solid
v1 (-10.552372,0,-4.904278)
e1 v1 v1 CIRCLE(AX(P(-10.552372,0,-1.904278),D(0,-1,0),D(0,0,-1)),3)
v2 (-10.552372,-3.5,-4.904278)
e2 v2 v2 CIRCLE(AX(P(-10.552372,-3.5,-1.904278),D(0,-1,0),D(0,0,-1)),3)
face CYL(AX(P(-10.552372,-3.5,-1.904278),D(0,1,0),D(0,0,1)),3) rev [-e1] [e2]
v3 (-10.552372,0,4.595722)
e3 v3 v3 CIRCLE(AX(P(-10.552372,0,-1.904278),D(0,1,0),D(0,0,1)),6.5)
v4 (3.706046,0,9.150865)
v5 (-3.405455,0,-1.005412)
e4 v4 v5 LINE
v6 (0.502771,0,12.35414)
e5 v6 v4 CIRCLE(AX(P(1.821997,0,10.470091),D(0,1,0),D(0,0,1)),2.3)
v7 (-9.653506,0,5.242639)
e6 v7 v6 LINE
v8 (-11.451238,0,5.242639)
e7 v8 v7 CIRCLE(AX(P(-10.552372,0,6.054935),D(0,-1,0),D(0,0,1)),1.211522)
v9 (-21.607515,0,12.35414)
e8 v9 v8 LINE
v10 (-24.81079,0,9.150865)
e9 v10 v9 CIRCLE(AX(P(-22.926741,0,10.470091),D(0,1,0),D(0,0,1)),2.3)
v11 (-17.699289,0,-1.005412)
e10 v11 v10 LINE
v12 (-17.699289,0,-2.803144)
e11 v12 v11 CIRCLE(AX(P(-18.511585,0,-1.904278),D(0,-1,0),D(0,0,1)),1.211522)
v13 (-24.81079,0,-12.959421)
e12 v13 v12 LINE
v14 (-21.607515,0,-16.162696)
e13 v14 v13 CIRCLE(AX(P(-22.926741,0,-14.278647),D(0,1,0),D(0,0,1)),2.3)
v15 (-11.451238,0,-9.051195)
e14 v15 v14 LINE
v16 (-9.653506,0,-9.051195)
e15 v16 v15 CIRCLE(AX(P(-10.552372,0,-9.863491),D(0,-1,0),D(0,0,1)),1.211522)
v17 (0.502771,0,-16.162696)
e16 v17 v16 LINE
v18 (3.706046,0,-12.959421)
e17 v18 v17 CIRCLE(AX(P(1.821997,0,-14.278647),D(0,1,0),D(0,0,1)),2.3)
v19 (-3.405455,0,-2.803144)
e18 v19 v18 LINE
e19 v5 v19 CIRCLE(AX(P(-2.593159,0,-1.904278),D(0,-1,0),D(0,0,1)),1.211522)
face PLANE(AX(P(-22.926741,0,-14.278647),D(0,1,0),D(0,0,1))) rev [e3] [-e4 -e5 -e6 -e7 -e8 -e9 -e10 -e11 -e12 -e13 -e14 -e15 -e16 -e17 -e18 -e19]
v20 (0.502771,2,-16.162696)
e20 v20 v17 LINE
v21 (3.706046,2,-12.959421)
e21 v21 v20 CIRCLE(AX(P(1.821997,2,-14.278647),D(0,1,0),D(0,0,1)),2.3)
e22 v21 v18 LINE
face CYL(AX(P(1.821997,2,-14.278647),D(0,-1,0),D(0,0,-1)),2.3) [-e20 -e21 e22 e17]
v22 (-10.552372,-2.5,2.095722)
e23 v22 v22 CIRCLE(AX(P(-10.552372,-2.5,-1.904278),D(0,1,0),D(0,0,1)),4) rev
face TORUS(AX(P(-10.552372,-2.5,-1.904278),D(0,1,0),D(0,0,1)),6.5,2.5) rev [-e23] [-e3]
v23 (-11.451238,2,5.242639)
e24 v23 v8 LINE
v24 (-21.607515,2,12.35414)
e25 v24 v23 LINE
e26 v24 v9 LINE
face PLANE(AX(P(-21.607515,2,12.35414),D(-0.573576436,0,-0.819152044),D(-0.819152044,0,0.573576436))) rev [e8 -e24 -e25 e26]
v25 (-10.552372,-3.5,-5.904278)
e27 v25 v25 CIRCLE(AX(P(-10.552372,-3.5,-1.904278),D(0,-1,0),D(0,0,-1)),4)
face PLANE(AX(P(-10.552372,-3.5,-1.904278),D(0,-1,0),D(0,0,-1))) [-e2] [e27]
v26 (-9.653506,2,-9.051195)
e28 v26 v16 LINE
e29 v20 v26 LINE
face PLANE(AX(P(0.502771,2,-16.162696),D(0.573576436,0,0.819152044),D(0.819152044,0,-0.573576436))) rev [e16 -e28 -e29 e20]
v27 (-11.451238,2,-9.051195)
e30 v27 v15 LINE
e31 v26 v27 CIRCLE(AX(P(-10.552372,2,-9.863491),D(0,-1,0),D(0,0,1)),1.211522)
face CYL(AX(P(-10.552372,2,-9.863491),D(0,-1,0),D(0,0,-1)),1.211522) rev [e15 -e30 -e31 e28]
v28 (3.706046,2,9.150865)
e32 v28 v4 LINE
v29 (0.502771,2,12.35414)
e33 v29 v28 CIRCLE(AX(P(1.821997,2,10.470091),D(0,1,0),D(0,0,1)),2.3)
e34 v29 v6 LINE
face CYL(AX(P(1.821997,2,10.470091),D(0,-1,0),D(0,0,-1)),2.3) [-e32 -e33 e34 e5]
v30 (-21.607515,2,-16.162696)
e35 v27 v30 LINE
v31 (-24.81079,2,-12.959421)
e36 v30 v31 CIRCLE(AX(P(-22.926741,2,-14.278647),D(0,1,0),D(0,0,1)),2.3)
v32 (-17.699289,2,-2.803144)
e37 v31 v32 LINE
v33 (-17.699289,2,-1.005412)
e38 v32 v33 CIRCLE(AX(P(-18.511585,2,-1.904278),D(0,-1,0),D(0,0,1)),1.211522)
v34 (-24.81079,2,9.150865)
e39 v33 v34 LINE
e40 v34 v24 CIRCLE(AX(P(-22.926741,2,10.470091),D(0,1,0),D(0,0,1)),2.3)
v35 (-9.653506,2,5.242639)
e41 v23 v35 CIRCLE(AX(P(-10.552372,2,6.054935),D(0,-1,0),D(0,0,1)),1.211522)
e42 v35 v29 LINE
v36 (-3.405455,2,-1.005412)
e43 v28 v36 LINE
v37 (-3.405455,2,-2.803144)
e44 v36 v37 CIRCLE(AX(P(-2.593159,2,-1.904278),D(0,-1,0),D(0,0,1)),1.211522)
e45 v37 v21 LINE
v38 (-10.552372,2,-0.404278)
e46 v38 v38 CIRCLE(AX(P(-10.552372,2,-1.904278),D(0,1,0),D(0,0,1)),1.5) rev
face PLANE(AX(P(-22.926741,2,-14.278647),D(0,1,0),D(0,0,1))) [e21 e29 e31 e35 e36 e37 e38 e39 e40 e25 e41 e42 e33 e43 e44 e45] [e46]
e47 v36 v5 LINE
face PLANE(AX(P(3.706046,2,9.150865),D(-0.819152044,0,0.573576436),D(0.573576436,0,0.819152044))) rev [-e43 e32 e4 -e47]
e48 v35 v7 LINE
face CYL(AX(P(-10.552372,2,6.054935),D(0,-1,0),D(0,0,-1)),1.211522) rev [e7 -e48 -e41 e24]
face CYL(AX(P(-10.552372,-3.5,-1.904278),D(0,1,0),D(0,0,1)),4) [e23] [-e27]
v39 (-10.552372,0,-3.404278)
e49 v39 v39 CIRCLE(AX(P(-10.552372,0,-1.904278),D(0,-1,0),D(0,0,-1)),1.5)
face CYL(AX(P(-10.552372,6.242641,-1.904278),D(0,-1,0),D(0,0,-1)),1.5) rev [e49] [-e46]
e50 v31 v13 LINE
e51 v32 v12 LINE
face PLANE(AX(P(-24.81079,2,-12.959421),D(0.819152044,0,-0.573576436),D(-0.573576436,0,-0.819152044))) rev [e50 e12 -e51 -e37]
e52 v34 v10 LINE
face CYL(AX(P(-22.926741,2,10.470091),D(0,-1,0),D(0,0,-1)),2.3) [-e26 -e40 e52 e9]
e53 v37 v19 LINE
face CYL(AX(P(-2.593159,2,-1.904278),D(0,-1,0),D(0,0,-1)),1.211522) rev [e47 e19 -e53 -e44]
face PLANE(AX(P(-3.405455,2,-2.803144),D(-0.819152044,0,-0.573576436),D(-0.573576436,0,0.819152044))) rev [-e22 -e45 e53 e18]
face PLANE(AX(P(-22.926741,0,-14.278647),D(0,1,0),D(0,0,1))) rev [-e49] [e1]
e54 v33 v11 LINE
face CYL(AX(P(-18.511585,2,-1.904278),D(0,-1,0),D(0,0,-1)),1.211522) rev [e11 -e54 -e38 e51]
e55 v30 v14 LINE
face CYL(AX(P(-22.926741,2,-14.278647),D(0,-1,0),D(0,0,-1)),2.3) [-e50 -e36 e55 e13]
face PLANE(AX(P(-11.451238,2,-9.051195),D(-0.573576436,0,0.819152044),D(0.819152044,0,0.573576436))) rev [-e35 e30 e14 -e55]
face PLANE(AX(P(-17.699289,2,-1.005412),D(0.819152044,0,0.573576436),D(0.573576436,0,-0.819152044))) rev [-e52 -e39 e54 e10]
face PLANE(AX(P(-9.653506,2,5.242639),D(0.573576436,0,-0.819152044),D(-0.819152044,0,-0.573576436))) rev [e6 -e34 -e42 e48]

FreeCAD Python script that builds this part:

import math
import FreeCAD as App
import Part
import Sketcher
from FreeCAD import Vector
Q = App.Units.Quantity


def edges_at(feature, points):
    """Names of the edges that pass closest to the given points."""
    edges = feature.Shape.Edges
    near = lambda p: min(range(len(edges)), key=lambda i: edges[i].distToShape(Part.Vertex(*p))[0])
    return sorted({f"Edge{near(p) + 1}" for p in points})

doc = App.newDocument("Part")
body = doc.addObject("PartDesign::Body", "Body")

# Sketch on XZ plane
sketch1 = body.newObject("Sketcher::SketchObject", "Sketch")
sketch1.AttachmentSupport = (doc.getObject("XZ_Plane"), [""])
sketch1.MapMode = "FlatFace"
sketch1.addGeometry(Part.LineSegment(Vector(-24.8, -13, 0), Vector(-17.7, -2.8, 0)), False)
sketch1.addGeometry(Part.ArcOfCircle(Part.Circle(Vector(-18.5, -1.9, 0), Vector(0, 0, 1), 1.2), math.radians(-48), math.radians(48)), False)
sketch1.addGeometry(Part.LineSegment(Vector(-17.7, -1, 0), Vector(-24.8, 9.2, 0)), False)
sketch1.addGeometry(Part.ArcOfCircle(Part.Circle(Vector(-22.9, 10.5, 0), Vector(0, 0, 1), 2.3), math.radians(55), math.radians(215)), False)
sketch1.addGeometry(Part.LineSegment(Vector(-21.6, 12.4, 0), Vector(-11.5, 5.2, 0)), False)
sketch1.addGeometry(Part.ArcOfCircle(Part.Circle(Vector(-10.6, 6.1, 0), Vector(0, 0, 1), 1.2), math.radians(-138), math.radians(-42)), False)
sketch1.addGeometry(Part.LineSegment(Vector(-9.7, 5.2, 0), Vector(0.5, 12.4, 0)), False)
sketch1.addGeometry(Part.ArcOfCircle(Part.Circle(Vector(1.8, 10.5, 0), Vector(0, 0, 1), 2.3), math.radians(-35), math.radians(125)), False)
sketch1.addGeometry(Part.LineSegment(Vector(3.7, 9.2, 0), Vector(-3.4, -1, 0)), False)
sketch1.addGeometry(Part.ArcOfCircle(Part.Circle(Vector(-2.6, -1.9, 0), Vector(0, 0, 1), 1.2), math.radians(132), math.radians(228)), False)
sketch1.addGeometry(Part.LineSegment(Vector(-3.4, -2.8, 0), Vector(3.7, -13, 0)), False)
sketch1.addGeometry(Part.ArcOfCircle(Part.Circle(Vector(1.8, -14.3, 0), Vector(0, 0, 1), 2.3), math.radians(-125), math.radians(35)), False)
sketch1.addGeometry(Part.LineSegment(Vector(0.5, -16.2, 0), Vector(-9.7, -9.1, 0)), False)
sketch1.addGeometry(Part.ArcOfCircle(Part.Circle(Vector(-10.6, -9.9, 0), Vector(0, 0, 1), 1.2), math.radians(42), math.radians(138)), False)
sketch1.addGeometry(Part.LineSegment(Vector(-11.5, -9.1, 0), Vector(-21.6, -16.2, 0)), False)
sketch1.addGeometry(Part.ArcOfCircle(Part.Circle(Vector(-22.9, -14.3, 0), Vector(0, 0, 1), 2.3), math.radians(145), math.radians(305)), False)
sketch1.addConstraint(Sketcher.Constraint("Coincident", 0, 2, 1, 1))
sketch1.addConstraint(Sketcher.Constraint("Coincident", 1, 2, 2, 1))
sketch1.addConstraint(Sketcher.Constraint("Tangent", 2, 2, 3, 2))
sketch1.addConstraint(Sketcher.Constraint("Tangent", 3, 1, 4, 1))
sketch1.addConstraint(Sketcher.Constraint("Coincident", 4, 2, 5, 1))
sketch1.addConstraint(Sketcher.Constraint("Coincident", 5, 2, 6, 1))
sketch1.addConstraint(Sketcher.Constraint("Tangent", 6, 2, 7, 2))
sketch1.addConstraint(Sketcher.Constraint("Tangent", 7, 1, 8, 1))
sketch1.addConstraint(Sketcher.Constraint("Coincident", 8, 2, 9, 1))
sketch1.addConstraint(Sketcher.Constraint("Coincident", 9, 2, 10, 1))
sketch1.addConstraint(Sketcher.Constraint("Tangent", 10, 2, 11, 2))
sketch1.addConstraint(Sketcher.Constraint("Tangent", 11, 1, 12, 1))
sketch1.addConstraint(Sketcher.Constraint("Coincident", 12, 2, 13, 1))
sketch1.addConstraint(Sketcher.Constraint("Coincident", 13, 2, 14, 1))
sketch1.addConstraint(Sketcher.Constraint("Tangent", 14, 2, 15, 2))
sketch1.addConstraint(Sketcher.Constraint("Tangent", 15, 1, 0, 1))
sketch1.addConstraint(Sketcher.Constraint("Equal", 1, 5))
sketch1.addConstraint(Sketcher.Constraint("Equal", 3, 7))
sketch1.addConstraint(Sketcher.Constraint("Equal", 5, 9))
sketch1.addConstraint(Sketcher.Constraint("Equal", 7, 11))
sketch1.addConstraint(Sketcher.Constraint("Equal", 9, 13))
sketch1.addConstraint(Sketcher.Constraint("Equal", 11, 15))
sketch1.addConstraint(Sketcher.Constraint("Perpendicular", 0, 4))
sketch1.addConstraint(Sketcher.Constraint("Perpendicular", 2, 6))
sketch1.addConstraint(Sketcher.Constraint("Perpendicular", 4, 8))
sketch1.addConstraint(Sketcher.Constraint("Perpendicular", 6, 10))
sketch1.addConstraint(Sketcher.Constraint("Perpendicular", 8, 12))
sketch1.addConstraint(Sketcher.Constraint("Perpendicular", 10, 14))
sketch1.addConstraint(Sketcher.Constraint("Horizontal", 3, 3, 7, 3))
sketch1.addConstraint(Sketcher.Constraint("Horizontal", 1, 3, 9, 3))
sketch1.addConstraint(Sketcher.Constraint("Horizontal", 11, 3, 15, 3))
sketch1.addConstraint(Sketcher.Constraint("Horizontal", 4, 2, 5, 2))
sketch1.addConstraint(Sketcher.Constraint("Horizontal", 3, 1, 6, 2))
sketch1.addConstraint(Sketcher.Constraint("Horizontal", 1, 2, 8, 2))
sketch1.addConstraint(Sketcher.Constraint("Horizontal", 0, 2, 9, 2))
sketch1.addConstraint(Sketcher.Constraint("Horizontal", 12, 2, 13, 2))
sketch1.addConstraint(Sketcher.Constraint("Vertical", 7, 3, 11, 3))
sketch1.addConstraint(Sketcher.Constraint("Vertical", 0, 2, 1, 2))
sketch1.addConstraint(Sketcher.Constraint("Vertical", 5, 2, 12, 2))
sketch1.addConstraint(Sketcher.Constraint("Equal", 2, 4))
sketch1.addConstraint(Sketcher.Constraint("Radius", 3, 2.3))
sketch1.addConstraint(Sketcher.Constraint("Angle", 0, Q("55 deg")))
sketch1.addConstraint(Sketcher.Constraint("Radius", 1, 1.211522))
sketch1.addConstraint(Sketcher.Constraint("DistanceX", 2, 2, 1, 2, 7.111501))
sketch1.addConstraint(Sketcher.Constraint("DistanceX", 3, 3, -1, 1, 22.926741))
sketch1.addConstraint(Sketcher.Constraint("DistanceY", -1, 1, 3, 3, 10.470091))
sketch1.addConstraint(Sketcher.Constraint("DistanceX", 5, 3, -1, 1, 10.552372))
sketch1.addConstraint(Sketcher.Constraint("DistanceX", 9, 3, -1, 1, 2.593159))
pad1 = body.newObject("PartDesign::Pad", "Pad")
pad1.Profile = sketch1
pad1.Length = 2
pad1.Reversed = True

# Sketch on XZ plane
sketch2 = body.newObject("Sketcher::SketchObject", "Sketch001")
sketch2.AttachmentSupport = (doc.getObject("XZ_Plane"), [""])
sketch2.MapMode = "FlatFace"
sketch2.addGeometry(Part.Circle(Vector(-10.6, -1.9, 0), Vector(0, 0, 1), 4), False)
sketch2.addGeometry(Part.Circle(Vector(-10.6, -1.9, 0), Vector(0, 0, 1), 3), False)
sketch2.addConstraint(Sketcher.Constraint("Coincident", 1, 3, 0, 3))
sketch2.addConstraint(Sketcher.Constraint("Diameter", 0, 8.0))
sketch2.addConstraint(Sketcher.Constraint("Diameter", 1, 6.0))
sketch2.addConstraint(Sketcher.Constraint("DistanceX", 0, 3, -1, 1, 10.552372))
sketch2.addConstraint(Sketcher.Constraint("DistanceY", 0, 3, -1, 1, 1.904278))
pad2 = body.newObject("PartDesign::Pad", "Pad001")
pad2.Profile = sketch2
pad2.Length = 3.5
doc.recompute()

fillet = body.newObject("PartDesign::Fillet", "Fillet")
fillet.Base = (pad2, edges_at(pad2, [(-10.552, 0, -5.904)]))
fillet.Radius = 2.5

# Sketch on XZ plane
sketch3 = body.newObject("Sketcher::SketchObject", "Sketch002")
sketch3.AttachmentSupport = (doc.getObject("XZ_Plane"), [""])
sketch3.MapMode = "FlatFace"
sketch3.addGeometry(Part.Circle(Vector(-10.6, -1.9, 0), Vector(0, 0, 1), 1.5), False)
sketch3.addConstraint(Sketcher.Constraint("Diameter", 0, 3.0))
sketch3.addConstraint(Sketcher.Constraint("DistanceX", 0, 3, -1, 1, 10.552372))
sketch3.addConstraint(Sketcher.Constraint("DistanceY", 0, 3, -1, 1, 1.904278))
pocket1 = body.newObject("PartDesign::Pocket", "Pocket")
pocket1.Profile = sketch3
pocket1.Length = 2

doc.recompute()
